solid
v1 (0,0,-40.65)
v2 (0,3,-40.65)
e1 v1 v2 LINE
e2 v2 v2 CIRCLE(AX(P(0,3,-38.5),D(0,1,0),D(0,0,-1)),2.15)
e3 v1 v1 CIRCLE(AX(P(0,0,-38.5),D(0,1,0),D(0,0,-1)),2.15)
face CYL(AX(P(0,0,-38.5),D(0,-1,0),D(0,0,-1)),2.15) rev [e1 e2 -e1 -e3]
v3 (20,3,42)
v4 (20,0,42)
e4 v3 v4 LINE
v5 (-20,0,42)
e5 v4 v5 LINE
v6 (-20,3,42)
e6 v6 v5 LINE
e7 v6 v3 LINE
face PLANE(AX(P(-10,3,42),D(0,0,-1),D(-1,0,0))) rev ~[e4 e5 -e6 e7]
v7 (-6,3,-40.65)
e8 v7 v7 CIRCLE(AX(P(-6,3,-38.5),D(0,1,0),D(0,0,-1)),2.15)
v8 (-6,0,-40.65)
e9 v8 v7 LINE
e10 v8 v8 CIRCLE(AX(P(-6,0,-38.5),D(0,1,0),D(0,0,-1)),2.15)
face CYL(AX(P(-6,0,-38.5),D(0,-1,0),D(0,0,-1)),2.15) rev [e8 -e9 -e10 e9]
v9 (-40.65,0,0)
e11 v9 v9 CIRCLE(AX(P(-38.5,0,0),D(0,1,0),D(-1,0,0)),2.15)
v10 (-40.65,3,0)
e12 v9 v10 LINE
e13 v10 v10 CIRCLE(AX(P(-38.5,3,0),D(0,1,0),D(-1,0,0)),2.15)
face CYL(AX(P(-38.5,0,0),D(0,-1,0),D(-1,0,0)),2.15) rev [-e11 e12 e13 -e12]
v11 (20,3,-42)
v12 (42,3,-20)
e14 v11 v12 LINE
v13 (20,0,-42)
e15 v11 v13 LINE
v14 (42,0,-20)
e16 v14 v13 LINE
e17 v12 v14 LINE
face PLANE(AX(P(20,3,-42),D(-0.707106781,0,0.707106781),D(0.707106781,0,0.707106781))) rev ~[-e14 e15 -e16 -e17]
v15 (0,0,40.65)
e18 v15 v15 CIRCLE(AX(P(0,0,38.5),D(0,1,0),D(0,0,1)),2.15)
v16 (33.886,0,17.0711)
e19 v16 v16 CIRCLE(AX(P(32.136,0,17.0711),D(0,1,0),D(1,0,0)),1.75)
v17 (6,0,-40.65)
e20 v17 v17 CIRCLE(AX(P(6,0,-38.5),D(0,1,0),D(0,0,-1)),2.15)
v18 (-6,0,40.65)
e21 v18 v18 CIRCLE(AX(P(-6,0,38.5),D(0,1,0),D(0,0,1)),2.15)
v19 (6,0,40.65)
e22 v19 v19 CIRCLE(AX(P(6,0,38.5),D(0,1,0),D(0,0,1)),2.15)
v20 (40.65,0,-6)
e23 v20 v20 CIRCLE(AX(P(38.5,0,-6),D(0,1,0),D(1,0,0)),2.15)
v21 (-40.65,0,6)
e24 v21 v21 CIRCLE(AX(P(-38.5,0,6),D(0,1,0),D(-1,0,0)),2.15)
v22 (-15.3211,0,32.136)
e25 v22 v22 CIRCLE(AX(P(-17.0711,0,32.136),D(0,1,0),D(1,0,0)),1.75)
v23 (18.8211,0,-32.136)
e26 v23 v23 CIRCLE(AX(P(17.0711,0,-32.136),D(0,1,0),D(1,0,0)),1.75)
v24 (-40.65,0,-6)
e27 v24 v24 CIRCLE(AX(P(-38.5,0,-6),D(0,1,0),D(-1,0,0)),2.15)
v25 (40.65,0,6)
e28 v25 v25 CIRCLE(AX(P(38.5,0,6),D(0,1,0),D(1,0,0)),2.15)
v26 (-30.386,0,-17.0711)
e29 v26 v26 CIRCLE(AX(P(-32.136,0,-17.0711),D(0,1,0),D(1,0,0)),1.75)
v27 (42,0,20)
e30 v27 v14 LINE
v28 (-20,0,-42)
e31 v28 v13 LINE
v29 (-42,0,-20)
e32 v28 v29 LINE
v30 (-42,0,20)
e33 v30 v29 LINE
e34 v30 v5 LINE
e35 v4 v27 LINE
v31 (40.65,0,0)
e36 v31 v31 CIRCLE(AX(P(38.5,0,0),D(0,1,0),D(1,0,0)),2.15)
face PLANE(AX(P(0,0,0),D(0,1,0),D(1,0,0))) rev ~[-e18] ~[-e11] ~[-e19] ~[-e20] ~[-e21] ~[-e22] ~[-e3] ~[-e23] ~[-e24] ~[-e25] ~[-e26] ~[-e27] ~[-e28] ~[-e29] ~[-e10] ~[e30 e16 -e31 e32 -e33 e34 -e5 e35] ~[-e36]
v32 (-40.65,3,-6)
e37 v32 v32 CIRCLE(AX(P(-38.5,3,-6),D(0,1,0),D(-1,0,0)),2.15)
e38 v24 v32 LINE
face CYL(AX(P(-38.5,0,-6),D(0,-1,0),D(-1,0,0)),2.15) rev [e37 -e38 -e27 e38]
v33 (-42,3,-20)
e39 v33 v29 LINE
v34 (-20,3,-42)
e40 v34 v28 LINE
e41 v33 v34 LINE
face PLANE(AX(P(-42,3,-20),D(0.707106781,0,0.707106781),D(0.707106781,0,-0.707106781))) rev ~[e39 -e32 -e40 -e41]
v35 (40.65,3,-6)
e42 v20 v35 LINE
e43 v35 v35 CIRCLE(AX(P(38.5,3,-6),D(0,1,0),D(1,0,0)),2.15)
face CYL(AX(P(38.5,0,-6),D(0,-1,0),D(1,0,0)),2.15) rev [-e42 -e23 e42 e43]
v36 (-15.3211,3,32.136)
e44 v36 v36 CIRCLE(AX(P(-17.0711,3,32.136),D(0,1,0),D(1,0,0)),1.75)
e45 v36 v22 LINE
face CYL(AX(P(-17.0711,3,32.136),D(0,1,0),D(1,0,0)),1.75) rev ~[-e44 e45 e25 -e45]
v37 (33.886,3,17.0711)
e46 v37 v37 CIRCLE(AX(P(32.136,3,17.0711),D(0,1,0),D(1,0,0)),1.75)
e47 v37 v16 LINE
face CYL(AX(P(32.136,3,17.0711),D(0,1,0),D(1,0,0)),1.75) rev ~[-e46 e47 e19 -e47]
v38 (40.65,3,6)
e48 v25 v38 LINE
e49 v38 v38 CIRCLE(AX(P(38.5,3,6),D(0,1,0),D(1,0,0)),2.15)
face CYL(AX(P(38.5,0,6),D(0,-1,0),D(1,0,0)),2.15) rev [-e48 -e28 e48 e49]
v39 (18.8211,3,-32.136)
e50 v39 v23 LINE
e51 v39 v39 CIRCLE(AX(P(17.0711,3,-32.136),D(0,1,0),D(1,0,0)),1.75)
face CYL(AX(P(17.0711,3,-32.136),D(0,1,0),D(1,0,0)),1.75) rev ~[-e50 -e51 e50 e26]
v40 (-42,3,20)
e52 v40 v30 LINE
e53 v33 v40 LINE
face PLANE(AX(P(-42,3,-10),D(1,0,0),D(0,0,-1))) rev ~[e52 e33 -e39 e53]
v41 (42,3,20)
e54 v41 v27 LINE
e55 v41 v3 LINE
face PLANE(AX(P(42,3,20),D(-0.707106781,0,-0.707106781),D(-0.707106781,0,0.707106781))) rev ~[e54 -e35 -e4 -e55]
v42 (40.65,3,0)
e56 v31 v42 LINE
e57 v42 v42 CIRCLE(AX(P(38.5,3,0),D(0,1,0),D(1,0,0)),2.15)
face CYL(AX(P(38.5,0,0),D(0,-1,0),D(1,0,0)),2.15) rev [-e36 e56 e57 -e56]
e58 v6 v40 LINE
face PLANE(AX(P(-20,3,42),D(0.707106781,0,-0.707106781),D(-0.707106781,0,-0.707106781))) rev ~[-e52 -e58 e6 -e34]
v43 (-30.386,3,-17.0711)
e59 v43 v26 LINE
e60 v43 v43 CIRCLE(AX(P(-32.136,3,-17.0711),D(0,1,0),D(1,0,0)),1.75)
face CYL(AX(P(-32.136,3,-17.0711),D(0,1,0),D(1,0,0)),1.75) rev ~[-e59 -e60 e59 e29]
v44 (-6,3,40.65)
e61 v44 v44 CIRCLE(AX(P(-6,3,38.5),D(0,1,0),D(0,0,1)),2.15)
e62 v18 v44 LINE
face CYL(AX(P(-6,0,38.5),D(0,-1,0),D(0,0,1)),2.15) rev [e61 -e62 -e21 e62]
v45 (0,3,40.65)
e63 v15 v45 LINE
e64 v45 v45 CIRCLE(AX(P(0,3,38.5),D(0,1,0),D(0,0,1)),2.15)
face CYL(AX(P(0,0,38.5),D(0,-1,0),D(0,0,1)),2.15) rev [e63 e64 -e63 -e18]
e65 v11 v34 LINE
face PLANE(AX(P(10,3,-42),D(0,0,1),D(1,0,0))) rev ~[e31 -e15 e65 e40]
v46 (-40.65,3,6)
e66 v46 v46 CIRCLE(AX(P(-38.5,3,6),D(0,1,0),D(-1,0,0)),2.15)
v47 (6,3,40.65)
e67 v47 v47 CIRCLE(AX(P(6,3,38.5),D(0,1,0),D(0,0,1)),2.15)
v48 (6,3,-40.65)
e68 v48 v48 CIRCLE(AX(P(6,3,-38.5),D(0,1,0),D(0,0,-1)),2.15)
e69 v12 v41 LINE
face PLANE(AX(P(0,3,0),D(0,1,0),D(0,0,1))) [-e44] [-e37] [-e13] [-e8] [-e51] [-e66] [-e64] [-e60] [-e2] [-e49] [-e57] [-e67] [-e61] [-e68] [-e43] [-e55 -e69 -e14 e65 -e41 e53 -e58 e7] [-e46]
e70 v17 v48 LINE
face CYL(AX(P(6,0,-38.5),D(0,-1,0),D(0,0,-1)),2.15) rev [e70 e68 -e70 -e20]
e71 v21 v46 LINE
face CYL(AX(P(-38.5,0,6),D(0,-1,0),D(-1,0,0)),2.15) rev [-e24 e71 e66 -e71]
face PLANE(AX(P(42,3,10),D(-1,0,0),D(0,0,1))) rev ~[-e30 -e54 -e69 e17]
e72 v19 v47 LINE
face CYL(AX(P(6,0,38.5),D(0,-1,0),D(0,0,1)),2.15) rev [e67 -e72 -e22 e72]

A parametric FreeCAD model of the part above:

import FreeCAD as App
import Part
import Sketcher
Q = App.Units.Quantity


def edges_at(feature, points):
    """Names of the edges that pass closest to the given points."""
    edges = feature.Shape.Edges
    near = lambda p: min(range(len(edges)), key=lambda i: edges[i].distToShape(Part.Vertex(*p))[0])
    return sorted({f"Edge{near(p) + 1}" for p in points})


def add_polygon(sketch, points):
    """Adds a closed chain of lines whose ends are joined by coincident constraints."""
    first, n = sketch.GeometryCount, len(points)
    for a, b in zip(points, points[1:] + points[:1]):
        sketch.addGeometry(Part.LineSegment(App.Vector(*a, 0), App.Vector(*b, 0)), False)
    for i in range(n):
        sketch.addConstraint(Sketcher.Constraint("Coincident", first + i, 2, first + (i + 1) % n, 1))

doc = App.newDocument("Part")
body = doc.addObject("PartDesign::Body", "Body")

sketch1 = doc.addObject("Sketcher::SketchObject", "Sketch")
body.addObject(sketch1)
sketch1.AttachmentSupport = (doc.XZ_Plane, [""])
sketch1.MapMode = "FlatFace"
add_polygon(sketch1, [(-35, 14), (-35, 35), (0, 0), (-35, -35), (-35, -14), (-42, -10), (-42, 10)])
sketch1.addGeometry(Part.Circle(App.Vector(-38.5, -6, 0), App.Vector(0, 0, 1), 2.1), False)
sketch1.addGeometry(Part.Circle(App.Vector(-38.5, 0, 0), App.Vector(0, 0, 1), 2.1), False)
sketch1.addGeometry(Part.Circle(App.Vector(-38.5, 6, 0), App.Vector(0, 0, 1), 2.1), False)
sketch1.addConstraint(Sketcher.Constraint("Vertical", 0))
sketch1.addConstraint(Sketcher.Constraint("Vertical", 3))
sketch1.addConstraint(Sketcher.Constraint("Vertical", 5))
sketch1.addConstraint(Sketcher.Constraint("Coincident", 1, 2, -1, 1))
sketch1.addConstraint(Sketcher.Constraint("Equal", 7, 8))
sketch1.addConstraint(Sketcher.Constraint("Equal", 8, 9))
sketch1.addConstraint(Sketcher.Constraint("Symmetric", 7, 3, 9, 3, -1))
sketch1.addConstraint(Sketcher.Constraint("Symmetric", 0, 2, 2, 2, -1))
sketch1.addConstraint(Sketcher.Constraint("PointOnObject", 8, 3, -1))
sketch1.addConstraint(Sketcher.Constraint("Perpendicular", 1, 2))
sketch1.addConstraint(Sketcher.Constraint("Vertical", 7, 3, 8, 3))
sketch1.addConstraint(Sketcher.Constraint("Equal", 0, 3))
sketch1.addConstraint(Sketcher.Constraint("Equal", 4, 6))
sketch1.addConstraint(Sketcher.Constraint("Diameter", 7, 4.3))
sketch1.addConstraint(Sketcher.Constraint("DistanceY", 5, 1, 5, 2, 20.0))
sketch1.addConstraint(Sketcher.Constraint("DistanceY", 7, 3, -1, 1, 6.0))
sketch1.addConstraint(Sketcher.Constraint("DistanceY", 2, 2, 0, 2, 70.0))
sketch1.addConstraint(Sketcher.Constraint("DistanceY", 3, 2, 9, 3, 20.0))
sketch1.addConstraint(Sketcher.Constraint("DistanceX", 4, 2, 3, 2, 7.0))
sketch1.addConstraint(Sketcher.Constraint("DistanceX", 7, 3, -1, 1, 38.5))
pad1 = doc.addObject("PartDesign::Pad", "Pad")
body.addObject(pad1)
pad1.Profile = sketch1
pad1.Length = 3
pad1.Reversed = True
doc.recompute()

polarpattern = doc.addObject("PartDesign::PolarPattern", "PolarPattern")
body.addObject(polarpattern)
polarpattern.Originals = [pad1]
polarpattern.Axis = (doc.Y_Axis, [""])
polarpattern.Angle = 360
polarpattern.Occurrences = 4
body.Tip = polarpattern
doc.recompute()

chamfer = doc.addObject("PartDesign::Chamfer", "Chamfer")
body.addObject(chamfer)
chamfer.Base = (polarpattern, edges_at(polarpattern, [
    (35, 1.5, -35),
    (-35, 1.5, -35),
    (-35, 1.5, 35),
    (35, 1.5, 35),
]))
chamfer.Size = 8

sketch2 = doc.addObject("Sketcher::SketchObject", "Sketch001")
body.addObject(sketch2)
sketch2.AttachmentSupport = (doc.XZ_Plane, [""])
sketch2.MapMode = "FlatFace"
sketch2.AttachmentOffset = App.Placement(App.Vector(0, 0, -3), App.Rotation())
add_polygon(sketch2, [(20, -42), (10, -42), (0, 0), (42, -10), (42, -20)])
sketch2.addConstraint(Sketcher.Constraint("Horizontal", 0))
sketch2.addConstraint(Sketcher.Constraint("Vertical", 3))
sketch2.addConstraint(Sketcher.Constraint("Coincident", 1, 2, -1, 1))
sketch2.addConstraint(Sketcher.Constraint("Equal", 0, 3))
sketch2.addConstraint(Sketcher.Constraint("Equal", 1, 2))
sketch2.addConstraint(Sketcher.Constraint("DistanceX", 0, 2, 0, 1, 10.0))
sketch2.addConstraint(Sketcher.Constraint("Angle", 4, Q("-135 deg")))
sketch2.addConstraint(Sketcher.Constraint("DistanceX", -1, 1, 0, 2, 10.0))
sketch2.addConstraint(Sketcher.Constraint("DistanceY", 0, 2, -1, 1, 42.0))
pad2 = doc.addObject("PartDesign::Pad", "Pad001")
body.addObject(pad2)
pad2.Profile = sketch2
pad2.Length = 3
doc.recompute()

polarpattern2 = doc.addObject("PartDesign::PolarPattern", "PolarPattern001")
body.addObject(polarpattern2)
polarpattern2.Originals = [pad2]
polarpattern2.Axis = (doc.Y_Axis, [""])
polarpattern2.Angle = 360
polarpattern2.Occurrences = 4
body.Tip = polarpattern2

sketch3 = doc.addObject("Sketcher::SketchObject", "Sketch002")
body.addObject(sketch3)
sketch3.AttachmentSupport = (doc.XZ_Plane, [""])
sketch3.MapMode = "FlatFace"
add_polygon(sketch3, [(38, 17), (17, 38), (10, 31), (-10, 31), (-17, 38), (-38, 17), (-31, 10), (-31, -10), (-38, -17), (-17, -38), (-10, -31), (10, -31), (17, -38), (38, -17), (31, -10), (31, 10)])
sketch3.addConstraint(Sketcher.Constraint("Horizontal", 2))
sketch3.addConstraint(Sketcher.Constraint("Vertical", 6))
sketch3.addConstraint(Sketcher.Constraint("Horizontal", 10))
sketch3.addConstraint(Sketcher.Constraint("Vertical", 14))
sketch3.addConstraint(Sketcher.Constraint("Symmetric", 0, 2, 8, 2, -1, 1))
sketch3.addConstraint(Sketcher.Constraint("Symmetric", 1, 2, 9, 2, -1, 1))
sketch3.addConstraint(Sketcher.Constraint("Symmetric", 3, 2, 11, 2, -1, 1))
sketch3.addConstraint(Sketcher.Constraint("Symmetric", 4, 2, 12, 2, -1, 1))
sketch3.addConstraint(Sketcher.Constraint("Symmetric", 5, 2, 13, 2, -1, 1))
sketch3.addConstraint(Sketcher.Constraint("Symmetric", 7, 2, 15, 2, -1, 1))
sketch3.addConstraint(Sketcher.Constraint("Symmetric", 0, 2, 3, 2, -2))
sketch3.addConstraint(Sketcher.Constraint("Symmetric", 7, 2, 12, 2, -2))
sketch3.addConstraint(Sketcher.Constraint("Perpendicular", 0, 1))
sketch3.addConstraint(Sketcher.Constraint("Perpendicular", 1, 3))
sketch3.addConstraint(Sketcher.Constraint("Perpendicular", 3, 4))
sketch3.addConstraint(Sketcher.Constraint("Perpendicular", 4, 5))
sketch3.addConstraint(Sketcher.Constraint("Perpendicular", 5, 7))
sketch3.addConstraint(Sketcher.Constraint("Perpendicular", 9, 11))
sketch3.addConstraint(Sketcher.Constraint("Perpendicular", 13, 15))
sketch3.addConstraint(Sketcher.Constraint("Equal", 10, 6))
sketch3.addConstraint(Sketcher.Constraint("Equal", 3, 5))
sketch3.addConstraint(Sketcher.Constraint("DistanceX", 4, 2, 1, 2, 48.0))
sketch3.addConstraint(Sketcher.Constraint("Distance", 0, 29.305))
sketch3.addConstraint(Sketcher.Constraint("DistanceX", 2, 2, 2, 1, 20.4142))
pocket1 = doc.addObject("PartDesign::Pocket", "Pocket")
body.addObject(pocket1)
pocket1.Profile = sketch3
pocket1.Type = "ThroughAll"

sketch4 = doc.addObject("Sketcher::SketchObject", "Sketch003")
body.addObject(sketch4)
sketch4.AttachmentSupport = (doc.XZ_Plane, [""])
sketch4.MapMode = "FlatFace"
sketch4.AttachmentOffset = App.Placement(App.Vector(0, 0, -3), App.Rotation())
add_polygon(sketch4, [(-17.1, 38.5), (-10, 31.4), (-15.7, 25.8), (-22.7, 32.8)])
sketch4.addGeometry(Part.Circle(App.Vector(-17.1, 32.1, 0), App.Vector(0, 0, 1), 1.8), False)
add_polygon(sketch4, [(38.5, 17.1), (31.4, 10), (25.8, 15.7), (32.8, 22.7)])
sketch4.addGeometry(Part.Circle(App.Vector(32.1, 17.1, 0), App.Vector(0, 0, 1), 1.8), False)
add_polygon(sketch4, [(17.1, -38.5), (10, -31.4), (15.7, -25.8), (22.7, -32.8)])
sketch4.addGeometry(Part.Circle(App.Vector(17.1, -32.1, 0), App.Vector(0, 0, 1), 1.8), False)
add_polygon(sketch4, [(-38.5, -17.1), (-31.4, -10), (-25.8, -15.7), (-32.8, -22.7)])
sketch4.addGeometry(Part.Circle(App.Vector(-32.1, -17.1, 0), App.Vector(0, 0, 1), 1.8), False)
sketch4.addConstraint(Sketcher.Constraint("Equal", 4, 9))
sketch4.addConstraint(Sketcher.Constraint("Equal", 9, 14))
sketch4.addConstraint(Sketcher.Constraint("Equal", 14, 19))
sketch4.addConstraint(Sketcher.Constraint("Symmetric", 4, 3, 14, 3, -1, 1))
sketch4.addConstraint(Sketcher.Constraint("Symmetric", 9, 3, 19, 3, -1, 1))
sketch4.addConstraint(Sketcher.Constraint("Symmetric", 0, 2, 10, 2, -1, 1))
sketch4.addConstraint(Sketcher.Constraint("Symmetric", 1, 2, 11, 2, -1, 1))
sketch4.addConstraint(Sketcher.Constraint("Symmetric", 2, 2, 12, 2, -1, 1))
sketch4.addConstraint(Sketcher.Constraint("Symmetric", 3, 2, 13, 2, -1, 1))
sketch4.addConstraint(Sketcher.Constraint("Symmetric", 5, 2, 15, 2, -1, 1))
sketch4.addConstraint(Sketcher.Constraint("Symmetric", 6, 2, 16, 2, -1, 1))
sketch4.addConstraint(Sketcher.Constraint("Symmetric", 7, 2, 17, 2, -1, 1))
sketch4.addConstraint(Sketcher.Constraint("Symmetric", 8, 2, 18, 2, -1, 1))
sketch4.addConstraint(Sketcher.Constraint("Perpendicular", 0, 1))
sketch4.addConstraint(Sketcher.Constraint("Perpendicular", 1, 2))
sketch4.addConstraint(Sketcher.Constraint("Perpendicular", 2, 3))
sketch4.addConstraint(Sketcher.Constraint("Parallel", 3, 5))
sketch4.addConstraint(Sketcher.Constraint("Perpendicular", 5, 6))
sketch4.addConstraint(Sketcher.Constraint("Perpendicular", 6, 7))
sketch4.addConstraint(Sketcher.Constraint("Perpendicular", 7, 8))
sketch4.addConstraint(Sketcher.Constraint("Horizontal", 9, 3, 8, 2))
sketch4.addConstraint(Sketcher.Constraint("Vertical", 4, 3, 3, 2))
sketch4.addConstraint(Sketcher.Constraint("Equal", 2, 5))
sketch4.addConstraint(Sketcher.Constraint("Equal", 3, 6))
sketch4.addConstraint(Sketcher.Constraint("Diameter", 4, 3.5))
sketch4.addConstraint(Sketcher.Constraint("Distance", 1, 8.0))
sketch4.addConstraint(Sketcher.Constraint("Angle", 0, Q("-45 deg")))
sketch4.addConstraint(Sketcher.Constraint("Distance", 0, 10.0))
sketch4.addConstraint(Sketcher.Constraint("DistanceX", 0, 2, -1, 1, 10.0))
sketch4.addConstraint(Sketcher.Constraint("DistanceY", -1, 1, 5, 2, 10.0))
sketch4.addConstraint(Sketcher.Constraint("DistanceY", -1, 1, 3, 2, 38.5))
sketch4.addConstraint(Sketcher.Constraint("DistanceX", -1, 1, 8, 2, 38.5))
sketch4.addConstraint(Sketcher.Constraint("DistanceY", -1, 1, 4, 3, 32.136))
sketch4.addConstraint(Sketcher.Constraint("DistanceX", -1, 1, 9, 3, 32.136))
pad3 = doc.addObject("PartDesign::Pad", "Pad002")
body.addObject(pad3)
pad3.Profile = sketch4
pad3.Length = 3

sketch5 = doc.addObject("Sketcher::SketchObject", "Sketch004")
body.addObject(sketch5)
sketch5.AttachmentSupport = (doc.XZ_Plane, [""])
sketch5.MapMode = "FlatFace"
sketch5.AttachmentOffset = App.Placement(App.Vector(0, 0, -3), App.Rotation())
add_polygon(sketch5, [(37.79, -17.07), (22.37, -32.49), (15.66, -25.77), (10.35, -31.08), (10.21, -30.93), (-10.21, -30.93), (-17.07, -37.79), (-32.49, -22.37), (-25.77, -15.66), (-31.08, -10.35), (-30.93, -10.21), (-30.93, 10.21), (-37.79, 17.07), (-22.37, 32.49), (-15.66, 25.77), (-10.35, 31.08), (-10.21, 30.93), (10.21, 30.93), (17.07, 37.79), (32.49, 22.37), (25.77, 15.66), (31.08, 10.35), (30.93, 10.21), (30.93, -10.21)])
sketch5.addConstraint(Sketcher.Constraint("Horizontal", 4))
sketch5.addConstraint(Sketcher.Constraint("Vertical", 10))
sketch5.addConstraint(Sketcher.Constraint("Horizontal", 16))
sketch5.addConstraint(Sketcher.Constraint("Vertical", 22))
sketch5.addConstraint(Sketcher.Constraint("Symmetric", 0, 2, 12, 2, -1, 1))
sketch5.addConstraint(Sketcher.Constraint("Symmetric", 1, 2, 13, 2, -1, 1))
sketch5.addConstraint(Sketcher.Constraint("Symmetric", 2, 2, 14, 2, -1, 1))
sketch5.addConstraint(Sketcher.Constraint("Symmetric", 3, 2, 15, 2, -1, 1))
sketch5.addConstraint(Sketcher.Constraint("Symmetric", 5, 2, 17, 2, -1, 1))
sketch5.addConstraint(Sketcher.Constraint("Symmetric", 6, 2, 18, 2, -1, 1))
sketch5.addConstraint(Sketcher.Constraint("Symmetric", 7, 2, 19, 2, -1, 1))
sketch5.addConstraint(Sketcher.Constraint("Symmetric", 8, 2, 20, 2, -1, 1))
sketch5.addConstraint(Sketcher.Constraint("Symmetric", 9, 2, 21, 2, -1, 1))
sketch5.addConstraint(Sketcher.Constraint("Symmetric", 11, 2, 23, 2, -1, 1))
sketch5.addConstraint(Sketcher.Constraint("Perpendicular", 0, 1))
sketch5.addConstraint(Sketcher.Constraint("Perpendicular", 1, 2))
sketch5.addConstraint(Sketcher.Constraint("Perpendicular", 2, 3))
sketch5.addConstraint(Sketcher.Constraint("Perpendicular", 3, 5))
sketch5.addConstraint(Sketcher.Constraint("Perpendicular", 5, 6))
sketch5.addConstraint(Sketcher.Constraint("Perpendicular", 6, 7))
sketch5.addConstraint(Sketcher.Constraint("Perpendicular", 7, 8))
sketch5.addConstraint(Sketcher.Constraint("Perpendicular", 8, 9))
sketch5.addConstraint(Sketcher.Constraint("Perpendicular", 9, 11))
sketch5.addConstraint(Sketcher.Constraint("Perpendicular", 15, 17))
sketch5.addConstraint(Sketcher.Constraint("Perpendicular", 21, 23))
sketch5.addConstraint(Sketcher.Constraint("Horizontal", 10, 2, 21, 2))
sketch5.addConstraint(Sketcher.Constraint("Vertical", 4, 2, 15, 2))
sketch5.addConstraint(Sketcher.Constraint("Equal", 16, 10))
sketch5.addConstraint(Sketcher.Constraint("Equal", 0, 6))
sketch5.addConstraint(Sketcher.Constraint("Equal", 1, 7))
sketch5.addConstraint(Sketcher.Constraint("Equal", 3, 9))
sketch5.addConstraint(Sketcher.Constraint("Equal", 5, 11))
sketch5.addConstraint(Sketcher.Constraint("Angle", 0, Q("-135 deg")))
sketch5.addConstraint(Sketcher.Constraint("Distance", 1, 9.5))
sketch5.addConstraint(Sketcher.Constraint("Distance", 2, 7.5))
sketch5.addConstraint(Sketcher.Constraint("Distance", 0, 21.805))
sketch5.addConstraint(Sketcher.Constraint("DistanceX", 4, 2, 4, 1, 20.4142))
sketch5.addConstraint(Sketcher.Constraint("DistanceX", -1, 1, 1, 2, 15.657))
pad4 = doc.addObject("PartDesign::Pad", "Pad003")
body.addObject(pad4)
pad4.Profile = sketch5
pad4.Length = 3

doc.recompute()
